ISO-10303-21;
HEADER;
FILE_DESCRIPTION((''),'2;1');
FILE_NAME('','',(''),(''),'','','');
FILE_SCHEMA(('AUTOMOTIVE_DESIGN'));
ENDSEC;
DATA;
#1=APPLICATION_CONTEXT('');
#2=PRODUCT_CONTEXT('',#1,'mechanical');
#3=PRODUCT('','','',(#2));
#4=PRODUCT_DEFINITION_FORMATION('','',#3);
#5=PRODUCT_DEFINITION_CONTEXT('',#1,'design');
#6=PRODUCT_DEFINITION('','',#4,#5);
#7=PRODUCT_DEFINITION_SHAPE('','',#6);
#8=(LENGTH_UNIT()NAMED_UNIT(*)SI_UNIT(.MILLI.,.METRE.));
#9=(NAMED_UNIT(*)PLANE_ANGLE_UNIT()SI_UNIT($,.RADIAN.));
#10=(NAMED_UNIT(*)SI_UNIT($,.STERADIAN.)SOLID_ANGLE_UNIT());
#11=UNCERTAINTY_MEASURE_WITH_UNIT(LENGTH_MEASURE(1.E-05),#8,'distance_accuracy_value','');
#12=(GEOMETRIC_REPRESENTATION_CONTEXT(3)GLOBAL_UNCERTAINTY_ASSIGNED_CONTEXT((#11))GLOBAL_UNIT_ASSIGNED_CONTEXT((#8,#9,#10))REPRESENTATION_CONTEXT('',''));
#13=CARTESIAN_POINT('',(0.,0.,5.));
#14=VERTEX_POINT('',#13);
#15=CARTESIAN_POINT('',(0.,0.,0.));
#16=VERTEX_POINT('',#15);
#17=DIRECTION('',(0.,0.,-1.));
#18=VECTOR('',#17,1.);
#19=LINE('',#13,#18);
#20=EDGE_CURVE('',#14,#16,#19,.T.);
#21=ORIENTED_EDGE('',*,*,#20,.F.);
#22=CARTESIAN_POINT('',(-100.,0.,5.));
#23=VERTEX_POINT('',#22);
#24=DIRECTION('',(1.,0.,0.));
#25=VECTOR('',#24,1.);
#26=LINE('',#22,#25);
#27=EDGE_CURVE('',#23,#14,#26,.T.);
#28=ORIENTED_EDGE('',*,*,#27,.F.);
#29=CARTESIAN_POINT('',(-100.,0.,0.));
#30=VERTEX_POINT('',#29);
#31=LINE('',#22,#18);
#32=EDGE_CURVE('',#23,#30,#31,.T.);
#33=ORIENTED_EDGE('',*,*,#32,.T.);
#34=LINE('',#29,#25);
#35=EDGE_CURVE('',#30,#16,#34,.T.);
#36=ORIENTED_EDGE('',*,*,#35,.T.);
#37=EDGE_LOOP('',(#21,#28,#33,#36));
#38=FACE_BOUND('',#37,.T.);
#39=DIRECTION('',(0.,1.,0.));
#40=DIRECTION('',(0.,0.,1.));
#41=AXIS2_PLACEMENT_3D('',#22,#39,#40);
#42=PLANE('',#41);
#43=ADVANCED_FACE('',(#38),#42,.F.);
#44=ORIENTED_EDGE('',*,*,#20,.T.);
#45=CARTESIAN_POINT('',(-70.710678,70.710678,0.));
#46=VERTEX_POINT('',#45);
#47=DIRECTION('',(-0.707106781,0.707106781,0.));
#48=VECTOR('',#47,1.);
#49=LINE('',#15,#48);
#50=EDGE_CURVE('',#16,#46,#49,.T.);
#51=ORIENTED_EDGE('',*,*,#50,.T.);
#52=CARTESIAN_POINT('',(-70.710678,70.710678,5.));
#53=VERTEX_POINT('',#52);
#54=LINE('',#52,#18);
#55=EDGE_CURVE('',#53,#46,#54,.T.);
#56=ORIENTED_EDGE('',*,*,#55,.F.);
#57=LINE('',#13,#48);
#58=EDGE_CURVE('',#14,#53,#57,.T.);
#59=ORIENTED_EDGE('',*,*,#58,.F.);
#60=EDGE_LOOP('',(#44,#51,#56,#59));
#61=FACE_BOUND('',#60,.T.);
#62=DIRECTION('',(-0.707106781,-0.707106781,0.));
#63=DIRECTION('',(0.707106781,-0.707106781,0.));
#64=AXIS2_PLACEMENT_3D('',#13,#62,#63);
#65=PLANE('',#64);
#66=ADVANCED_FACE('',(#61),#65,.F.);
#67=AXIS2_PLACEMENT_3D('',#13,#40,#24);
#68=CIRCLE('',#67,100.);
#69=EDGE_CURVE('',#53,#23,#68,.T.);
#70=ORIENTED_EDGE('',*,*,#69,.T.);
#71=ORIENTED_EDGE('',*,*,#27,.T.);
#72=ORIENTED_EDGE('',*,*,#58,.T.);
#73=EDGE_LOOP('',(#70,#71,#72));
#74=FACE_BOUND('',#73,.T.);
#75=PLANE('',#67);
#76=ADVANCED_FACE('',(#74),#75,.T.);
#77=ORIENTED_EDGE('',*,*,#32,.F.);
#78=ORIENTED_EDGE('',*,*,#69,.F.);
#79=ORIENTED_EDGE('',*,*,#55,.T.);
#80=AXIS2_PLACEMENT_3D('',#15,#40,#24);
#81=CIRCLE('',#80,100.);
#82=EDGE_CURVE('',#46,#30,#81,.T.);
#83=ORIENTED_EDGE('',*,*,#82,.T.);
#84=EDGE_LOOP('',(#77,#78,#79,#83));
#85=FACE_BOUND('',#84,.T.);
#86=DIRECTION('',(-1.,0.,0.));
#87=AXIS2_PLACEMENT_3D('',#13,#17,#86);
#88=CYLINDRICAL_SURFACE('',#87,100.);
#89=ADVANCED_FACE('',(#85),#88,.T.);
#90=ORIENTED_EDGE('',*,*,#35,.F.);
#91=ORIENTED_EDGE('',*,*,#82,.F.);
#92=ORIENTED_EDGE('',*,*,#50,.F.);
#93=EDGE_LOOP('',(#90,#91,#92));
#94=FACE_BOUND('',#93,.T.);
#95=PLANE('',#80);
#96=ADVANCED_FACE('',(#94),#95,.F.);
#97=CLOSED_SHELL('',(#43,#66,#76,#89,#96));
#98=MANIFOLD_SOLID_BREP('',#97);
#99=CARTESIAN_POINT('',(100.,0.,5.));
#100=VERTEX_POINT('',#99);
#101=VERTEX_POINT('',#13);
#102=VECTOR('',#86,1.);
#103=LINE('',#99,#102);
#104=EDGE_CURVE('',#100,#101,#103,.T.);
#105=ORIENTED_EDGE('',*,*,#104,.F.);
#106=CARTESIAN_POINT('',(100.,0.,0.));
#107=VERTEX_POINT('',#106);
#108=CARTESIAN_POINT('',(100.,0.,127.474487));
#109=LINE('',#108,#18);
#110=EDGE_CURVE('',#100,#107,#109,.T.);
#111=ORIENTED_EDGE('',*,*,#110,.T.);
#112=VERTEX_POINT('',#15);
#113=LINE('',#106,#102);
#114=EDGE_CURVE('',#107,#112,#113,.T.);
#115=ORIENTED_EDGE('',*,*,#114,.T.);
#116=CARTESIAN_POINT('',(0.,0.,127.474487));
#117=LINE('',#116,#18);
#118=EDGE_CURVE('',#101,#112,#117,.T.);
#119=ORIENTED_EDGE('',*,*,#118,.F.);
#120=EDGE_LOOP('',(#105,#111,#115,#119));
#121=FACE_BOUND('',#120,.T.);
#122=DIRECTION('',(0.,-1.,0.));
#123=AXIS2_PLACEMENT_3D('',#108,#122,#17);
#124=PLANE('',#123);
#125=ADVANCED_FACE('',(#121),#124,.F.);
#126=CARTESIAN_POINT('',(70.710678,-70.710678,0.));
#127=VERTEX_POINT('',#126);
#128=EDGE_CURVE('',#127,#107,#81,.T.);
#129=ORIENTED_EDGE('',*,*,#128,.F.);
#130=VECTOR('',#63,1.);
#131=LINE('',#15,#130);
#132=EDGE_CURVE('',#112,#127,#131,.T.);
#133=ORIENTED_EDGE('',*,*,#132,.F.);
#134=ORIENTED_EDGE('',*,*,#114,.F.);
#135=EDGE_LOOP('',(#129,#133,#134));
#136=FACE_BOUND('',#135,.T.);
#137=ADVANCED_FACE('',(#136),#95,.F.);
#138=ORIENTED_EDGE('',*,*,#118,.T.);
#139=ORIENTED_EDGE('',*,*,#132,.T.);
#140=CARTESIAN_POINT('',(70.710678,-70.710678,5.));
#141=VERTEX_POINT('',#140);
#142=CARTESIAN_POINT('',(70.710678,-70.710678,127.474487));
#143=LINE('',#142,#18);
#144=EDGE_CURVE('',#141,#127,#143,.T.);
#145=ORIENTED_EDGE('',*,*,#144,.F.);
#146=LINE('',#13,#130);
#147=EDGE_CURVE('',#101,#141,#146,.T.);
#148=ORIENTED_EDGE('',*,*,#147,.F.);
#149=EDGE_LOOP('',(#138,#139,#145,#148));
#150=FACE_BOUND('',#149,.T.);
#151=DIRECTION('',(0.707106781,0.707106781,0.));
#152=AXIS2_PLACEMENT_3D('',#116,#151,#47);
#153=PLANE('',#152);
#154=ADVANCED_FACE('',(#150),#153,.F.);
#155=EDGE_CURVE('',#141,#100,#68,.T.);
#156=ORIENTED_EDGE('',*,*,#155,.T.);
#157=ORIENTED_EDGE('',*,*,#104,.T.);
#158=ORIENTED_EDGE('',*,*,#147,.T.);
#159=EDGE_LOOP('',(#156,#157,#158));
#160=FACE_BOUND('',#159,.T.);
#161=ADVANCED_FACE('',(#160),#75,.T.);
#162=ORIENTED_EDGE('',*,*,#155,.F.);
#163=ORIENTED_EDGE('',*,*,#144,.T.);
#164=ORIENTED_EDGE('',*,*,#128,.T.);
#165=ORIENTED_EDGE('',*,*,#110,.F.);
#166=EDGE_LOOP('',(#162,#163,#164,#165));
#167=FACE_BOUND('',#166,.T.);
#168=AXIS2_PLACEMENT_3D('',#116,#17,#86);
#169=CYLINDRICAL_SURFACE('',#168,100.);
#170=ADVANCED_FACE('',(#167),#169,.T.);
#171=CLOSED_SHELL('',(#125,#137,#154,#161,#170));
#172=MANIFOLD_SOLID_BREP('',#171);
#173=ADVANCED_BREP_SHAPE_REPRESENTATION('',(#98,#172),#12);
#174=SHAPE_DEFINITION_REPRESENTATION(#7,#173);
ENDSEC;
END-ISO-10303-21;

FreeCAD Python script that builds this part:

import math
import FreeCAD as App
import Part
import Sketcher
Q = App.Units.Quantity

doc = App.newDocument("Part")
body = doc.addObject("PartDesign::Body", "Body")

# Sketch on XY plane
sketch1 = body.newObject("Sketcher::SketchObject", "Sketch")
sketch1.AttachmentSupport = (doc.getObject("XY_Plane"), [""])
sketch1.MapMode = "FlatFace"
sketch1.addGeometry([
    Part.LineSegment(App.Vector(0, 0, 0), App.Vector(-71, 71, 0)),
    Part.ArcOfCircle(Part.Circle(App.Vector(0, 0, 0), App.Vector(0, 0, 1), 100), math.radians(135), math.radians(180)),
    Part.LineSegment(App.Vector(-100, 0, 0), App.Vector(0, 0, 0)),
], False)
sketch1.addConstraint([
    Sketcher.Constraint("Coincident", 0, 2, 1, 1),
    Sketcher.Constraint("Coincident", 1, 2, 2, 1),
    Sketcher.Constraint("Coincident", 2, 2, 0, 1),
    Sketcher.Constraint("Horizontal", 2),
    Sketcher.Constraint("Coincident", 1, 3, -1, 1),
    Sketcher.Constraint("Coincident", 2, 2, -1, 1),
    Sketcher.Constraint("Radius", 1, 100.0),
    Sketcher.Constraint("Angle", 0, Q("135 deg")),
])
pad1 = body.newObject("PartDesign::Pad", "Pad")
pad1.Profile = sketch1
pad1.Length = 5
body2 = doc.addObject("PartDesign::Body", "Body001")

# Sketch on XY plane
sketch2 = body2.newObject("Sketcher::SketchObject", "Sketch001")
sketch2.AttachmentSupport = (doc.getObject("XY_Plane001"), [""])
sketch2.MapMode = "FlatFace"
sketch2.addGeometry([
    Part.LineSegment(App.Vector(0, 0, 0), App.Vector(71, -71, 0)),
    Part.ArcOfCircle(Part.Circle(App.Vector(0, 0, 0), App.Vector(0, 0, 1), 100), math.radians(-45), math.radians(0)),
    Part.LineSegment(App.Vector(100, 0, 0), App.Vector(0, 0, 0)),
], False)
sketch2.addConstraint([
    Sketcher.Constraint("Coincident", 0, 2, 1, 1),
    Sketcher.Constraint("Coincident", 1, 2, 2, 1),
    Sketcher.Constraint("Coincident", 2, 2, 0, 1),
    Sketcher.Constraint("Horizontal", 2),
    Sketcher.Constraint("Coincident", 1, 3, -1, 1),
    Sketcher.Constraint("Coincident", 2, 2, -1, 1),
    Sketcher.Constraint("Radius", 1, 100.0),
    Sketcher.Constraint("Angle", 0, Q("-45 deg")),
])
pad2 = body2.newObject("PartDesign::Pad", "Pad001")
pad2.Profile = sketch2
pad2.Length = 5

doc.recompute()
